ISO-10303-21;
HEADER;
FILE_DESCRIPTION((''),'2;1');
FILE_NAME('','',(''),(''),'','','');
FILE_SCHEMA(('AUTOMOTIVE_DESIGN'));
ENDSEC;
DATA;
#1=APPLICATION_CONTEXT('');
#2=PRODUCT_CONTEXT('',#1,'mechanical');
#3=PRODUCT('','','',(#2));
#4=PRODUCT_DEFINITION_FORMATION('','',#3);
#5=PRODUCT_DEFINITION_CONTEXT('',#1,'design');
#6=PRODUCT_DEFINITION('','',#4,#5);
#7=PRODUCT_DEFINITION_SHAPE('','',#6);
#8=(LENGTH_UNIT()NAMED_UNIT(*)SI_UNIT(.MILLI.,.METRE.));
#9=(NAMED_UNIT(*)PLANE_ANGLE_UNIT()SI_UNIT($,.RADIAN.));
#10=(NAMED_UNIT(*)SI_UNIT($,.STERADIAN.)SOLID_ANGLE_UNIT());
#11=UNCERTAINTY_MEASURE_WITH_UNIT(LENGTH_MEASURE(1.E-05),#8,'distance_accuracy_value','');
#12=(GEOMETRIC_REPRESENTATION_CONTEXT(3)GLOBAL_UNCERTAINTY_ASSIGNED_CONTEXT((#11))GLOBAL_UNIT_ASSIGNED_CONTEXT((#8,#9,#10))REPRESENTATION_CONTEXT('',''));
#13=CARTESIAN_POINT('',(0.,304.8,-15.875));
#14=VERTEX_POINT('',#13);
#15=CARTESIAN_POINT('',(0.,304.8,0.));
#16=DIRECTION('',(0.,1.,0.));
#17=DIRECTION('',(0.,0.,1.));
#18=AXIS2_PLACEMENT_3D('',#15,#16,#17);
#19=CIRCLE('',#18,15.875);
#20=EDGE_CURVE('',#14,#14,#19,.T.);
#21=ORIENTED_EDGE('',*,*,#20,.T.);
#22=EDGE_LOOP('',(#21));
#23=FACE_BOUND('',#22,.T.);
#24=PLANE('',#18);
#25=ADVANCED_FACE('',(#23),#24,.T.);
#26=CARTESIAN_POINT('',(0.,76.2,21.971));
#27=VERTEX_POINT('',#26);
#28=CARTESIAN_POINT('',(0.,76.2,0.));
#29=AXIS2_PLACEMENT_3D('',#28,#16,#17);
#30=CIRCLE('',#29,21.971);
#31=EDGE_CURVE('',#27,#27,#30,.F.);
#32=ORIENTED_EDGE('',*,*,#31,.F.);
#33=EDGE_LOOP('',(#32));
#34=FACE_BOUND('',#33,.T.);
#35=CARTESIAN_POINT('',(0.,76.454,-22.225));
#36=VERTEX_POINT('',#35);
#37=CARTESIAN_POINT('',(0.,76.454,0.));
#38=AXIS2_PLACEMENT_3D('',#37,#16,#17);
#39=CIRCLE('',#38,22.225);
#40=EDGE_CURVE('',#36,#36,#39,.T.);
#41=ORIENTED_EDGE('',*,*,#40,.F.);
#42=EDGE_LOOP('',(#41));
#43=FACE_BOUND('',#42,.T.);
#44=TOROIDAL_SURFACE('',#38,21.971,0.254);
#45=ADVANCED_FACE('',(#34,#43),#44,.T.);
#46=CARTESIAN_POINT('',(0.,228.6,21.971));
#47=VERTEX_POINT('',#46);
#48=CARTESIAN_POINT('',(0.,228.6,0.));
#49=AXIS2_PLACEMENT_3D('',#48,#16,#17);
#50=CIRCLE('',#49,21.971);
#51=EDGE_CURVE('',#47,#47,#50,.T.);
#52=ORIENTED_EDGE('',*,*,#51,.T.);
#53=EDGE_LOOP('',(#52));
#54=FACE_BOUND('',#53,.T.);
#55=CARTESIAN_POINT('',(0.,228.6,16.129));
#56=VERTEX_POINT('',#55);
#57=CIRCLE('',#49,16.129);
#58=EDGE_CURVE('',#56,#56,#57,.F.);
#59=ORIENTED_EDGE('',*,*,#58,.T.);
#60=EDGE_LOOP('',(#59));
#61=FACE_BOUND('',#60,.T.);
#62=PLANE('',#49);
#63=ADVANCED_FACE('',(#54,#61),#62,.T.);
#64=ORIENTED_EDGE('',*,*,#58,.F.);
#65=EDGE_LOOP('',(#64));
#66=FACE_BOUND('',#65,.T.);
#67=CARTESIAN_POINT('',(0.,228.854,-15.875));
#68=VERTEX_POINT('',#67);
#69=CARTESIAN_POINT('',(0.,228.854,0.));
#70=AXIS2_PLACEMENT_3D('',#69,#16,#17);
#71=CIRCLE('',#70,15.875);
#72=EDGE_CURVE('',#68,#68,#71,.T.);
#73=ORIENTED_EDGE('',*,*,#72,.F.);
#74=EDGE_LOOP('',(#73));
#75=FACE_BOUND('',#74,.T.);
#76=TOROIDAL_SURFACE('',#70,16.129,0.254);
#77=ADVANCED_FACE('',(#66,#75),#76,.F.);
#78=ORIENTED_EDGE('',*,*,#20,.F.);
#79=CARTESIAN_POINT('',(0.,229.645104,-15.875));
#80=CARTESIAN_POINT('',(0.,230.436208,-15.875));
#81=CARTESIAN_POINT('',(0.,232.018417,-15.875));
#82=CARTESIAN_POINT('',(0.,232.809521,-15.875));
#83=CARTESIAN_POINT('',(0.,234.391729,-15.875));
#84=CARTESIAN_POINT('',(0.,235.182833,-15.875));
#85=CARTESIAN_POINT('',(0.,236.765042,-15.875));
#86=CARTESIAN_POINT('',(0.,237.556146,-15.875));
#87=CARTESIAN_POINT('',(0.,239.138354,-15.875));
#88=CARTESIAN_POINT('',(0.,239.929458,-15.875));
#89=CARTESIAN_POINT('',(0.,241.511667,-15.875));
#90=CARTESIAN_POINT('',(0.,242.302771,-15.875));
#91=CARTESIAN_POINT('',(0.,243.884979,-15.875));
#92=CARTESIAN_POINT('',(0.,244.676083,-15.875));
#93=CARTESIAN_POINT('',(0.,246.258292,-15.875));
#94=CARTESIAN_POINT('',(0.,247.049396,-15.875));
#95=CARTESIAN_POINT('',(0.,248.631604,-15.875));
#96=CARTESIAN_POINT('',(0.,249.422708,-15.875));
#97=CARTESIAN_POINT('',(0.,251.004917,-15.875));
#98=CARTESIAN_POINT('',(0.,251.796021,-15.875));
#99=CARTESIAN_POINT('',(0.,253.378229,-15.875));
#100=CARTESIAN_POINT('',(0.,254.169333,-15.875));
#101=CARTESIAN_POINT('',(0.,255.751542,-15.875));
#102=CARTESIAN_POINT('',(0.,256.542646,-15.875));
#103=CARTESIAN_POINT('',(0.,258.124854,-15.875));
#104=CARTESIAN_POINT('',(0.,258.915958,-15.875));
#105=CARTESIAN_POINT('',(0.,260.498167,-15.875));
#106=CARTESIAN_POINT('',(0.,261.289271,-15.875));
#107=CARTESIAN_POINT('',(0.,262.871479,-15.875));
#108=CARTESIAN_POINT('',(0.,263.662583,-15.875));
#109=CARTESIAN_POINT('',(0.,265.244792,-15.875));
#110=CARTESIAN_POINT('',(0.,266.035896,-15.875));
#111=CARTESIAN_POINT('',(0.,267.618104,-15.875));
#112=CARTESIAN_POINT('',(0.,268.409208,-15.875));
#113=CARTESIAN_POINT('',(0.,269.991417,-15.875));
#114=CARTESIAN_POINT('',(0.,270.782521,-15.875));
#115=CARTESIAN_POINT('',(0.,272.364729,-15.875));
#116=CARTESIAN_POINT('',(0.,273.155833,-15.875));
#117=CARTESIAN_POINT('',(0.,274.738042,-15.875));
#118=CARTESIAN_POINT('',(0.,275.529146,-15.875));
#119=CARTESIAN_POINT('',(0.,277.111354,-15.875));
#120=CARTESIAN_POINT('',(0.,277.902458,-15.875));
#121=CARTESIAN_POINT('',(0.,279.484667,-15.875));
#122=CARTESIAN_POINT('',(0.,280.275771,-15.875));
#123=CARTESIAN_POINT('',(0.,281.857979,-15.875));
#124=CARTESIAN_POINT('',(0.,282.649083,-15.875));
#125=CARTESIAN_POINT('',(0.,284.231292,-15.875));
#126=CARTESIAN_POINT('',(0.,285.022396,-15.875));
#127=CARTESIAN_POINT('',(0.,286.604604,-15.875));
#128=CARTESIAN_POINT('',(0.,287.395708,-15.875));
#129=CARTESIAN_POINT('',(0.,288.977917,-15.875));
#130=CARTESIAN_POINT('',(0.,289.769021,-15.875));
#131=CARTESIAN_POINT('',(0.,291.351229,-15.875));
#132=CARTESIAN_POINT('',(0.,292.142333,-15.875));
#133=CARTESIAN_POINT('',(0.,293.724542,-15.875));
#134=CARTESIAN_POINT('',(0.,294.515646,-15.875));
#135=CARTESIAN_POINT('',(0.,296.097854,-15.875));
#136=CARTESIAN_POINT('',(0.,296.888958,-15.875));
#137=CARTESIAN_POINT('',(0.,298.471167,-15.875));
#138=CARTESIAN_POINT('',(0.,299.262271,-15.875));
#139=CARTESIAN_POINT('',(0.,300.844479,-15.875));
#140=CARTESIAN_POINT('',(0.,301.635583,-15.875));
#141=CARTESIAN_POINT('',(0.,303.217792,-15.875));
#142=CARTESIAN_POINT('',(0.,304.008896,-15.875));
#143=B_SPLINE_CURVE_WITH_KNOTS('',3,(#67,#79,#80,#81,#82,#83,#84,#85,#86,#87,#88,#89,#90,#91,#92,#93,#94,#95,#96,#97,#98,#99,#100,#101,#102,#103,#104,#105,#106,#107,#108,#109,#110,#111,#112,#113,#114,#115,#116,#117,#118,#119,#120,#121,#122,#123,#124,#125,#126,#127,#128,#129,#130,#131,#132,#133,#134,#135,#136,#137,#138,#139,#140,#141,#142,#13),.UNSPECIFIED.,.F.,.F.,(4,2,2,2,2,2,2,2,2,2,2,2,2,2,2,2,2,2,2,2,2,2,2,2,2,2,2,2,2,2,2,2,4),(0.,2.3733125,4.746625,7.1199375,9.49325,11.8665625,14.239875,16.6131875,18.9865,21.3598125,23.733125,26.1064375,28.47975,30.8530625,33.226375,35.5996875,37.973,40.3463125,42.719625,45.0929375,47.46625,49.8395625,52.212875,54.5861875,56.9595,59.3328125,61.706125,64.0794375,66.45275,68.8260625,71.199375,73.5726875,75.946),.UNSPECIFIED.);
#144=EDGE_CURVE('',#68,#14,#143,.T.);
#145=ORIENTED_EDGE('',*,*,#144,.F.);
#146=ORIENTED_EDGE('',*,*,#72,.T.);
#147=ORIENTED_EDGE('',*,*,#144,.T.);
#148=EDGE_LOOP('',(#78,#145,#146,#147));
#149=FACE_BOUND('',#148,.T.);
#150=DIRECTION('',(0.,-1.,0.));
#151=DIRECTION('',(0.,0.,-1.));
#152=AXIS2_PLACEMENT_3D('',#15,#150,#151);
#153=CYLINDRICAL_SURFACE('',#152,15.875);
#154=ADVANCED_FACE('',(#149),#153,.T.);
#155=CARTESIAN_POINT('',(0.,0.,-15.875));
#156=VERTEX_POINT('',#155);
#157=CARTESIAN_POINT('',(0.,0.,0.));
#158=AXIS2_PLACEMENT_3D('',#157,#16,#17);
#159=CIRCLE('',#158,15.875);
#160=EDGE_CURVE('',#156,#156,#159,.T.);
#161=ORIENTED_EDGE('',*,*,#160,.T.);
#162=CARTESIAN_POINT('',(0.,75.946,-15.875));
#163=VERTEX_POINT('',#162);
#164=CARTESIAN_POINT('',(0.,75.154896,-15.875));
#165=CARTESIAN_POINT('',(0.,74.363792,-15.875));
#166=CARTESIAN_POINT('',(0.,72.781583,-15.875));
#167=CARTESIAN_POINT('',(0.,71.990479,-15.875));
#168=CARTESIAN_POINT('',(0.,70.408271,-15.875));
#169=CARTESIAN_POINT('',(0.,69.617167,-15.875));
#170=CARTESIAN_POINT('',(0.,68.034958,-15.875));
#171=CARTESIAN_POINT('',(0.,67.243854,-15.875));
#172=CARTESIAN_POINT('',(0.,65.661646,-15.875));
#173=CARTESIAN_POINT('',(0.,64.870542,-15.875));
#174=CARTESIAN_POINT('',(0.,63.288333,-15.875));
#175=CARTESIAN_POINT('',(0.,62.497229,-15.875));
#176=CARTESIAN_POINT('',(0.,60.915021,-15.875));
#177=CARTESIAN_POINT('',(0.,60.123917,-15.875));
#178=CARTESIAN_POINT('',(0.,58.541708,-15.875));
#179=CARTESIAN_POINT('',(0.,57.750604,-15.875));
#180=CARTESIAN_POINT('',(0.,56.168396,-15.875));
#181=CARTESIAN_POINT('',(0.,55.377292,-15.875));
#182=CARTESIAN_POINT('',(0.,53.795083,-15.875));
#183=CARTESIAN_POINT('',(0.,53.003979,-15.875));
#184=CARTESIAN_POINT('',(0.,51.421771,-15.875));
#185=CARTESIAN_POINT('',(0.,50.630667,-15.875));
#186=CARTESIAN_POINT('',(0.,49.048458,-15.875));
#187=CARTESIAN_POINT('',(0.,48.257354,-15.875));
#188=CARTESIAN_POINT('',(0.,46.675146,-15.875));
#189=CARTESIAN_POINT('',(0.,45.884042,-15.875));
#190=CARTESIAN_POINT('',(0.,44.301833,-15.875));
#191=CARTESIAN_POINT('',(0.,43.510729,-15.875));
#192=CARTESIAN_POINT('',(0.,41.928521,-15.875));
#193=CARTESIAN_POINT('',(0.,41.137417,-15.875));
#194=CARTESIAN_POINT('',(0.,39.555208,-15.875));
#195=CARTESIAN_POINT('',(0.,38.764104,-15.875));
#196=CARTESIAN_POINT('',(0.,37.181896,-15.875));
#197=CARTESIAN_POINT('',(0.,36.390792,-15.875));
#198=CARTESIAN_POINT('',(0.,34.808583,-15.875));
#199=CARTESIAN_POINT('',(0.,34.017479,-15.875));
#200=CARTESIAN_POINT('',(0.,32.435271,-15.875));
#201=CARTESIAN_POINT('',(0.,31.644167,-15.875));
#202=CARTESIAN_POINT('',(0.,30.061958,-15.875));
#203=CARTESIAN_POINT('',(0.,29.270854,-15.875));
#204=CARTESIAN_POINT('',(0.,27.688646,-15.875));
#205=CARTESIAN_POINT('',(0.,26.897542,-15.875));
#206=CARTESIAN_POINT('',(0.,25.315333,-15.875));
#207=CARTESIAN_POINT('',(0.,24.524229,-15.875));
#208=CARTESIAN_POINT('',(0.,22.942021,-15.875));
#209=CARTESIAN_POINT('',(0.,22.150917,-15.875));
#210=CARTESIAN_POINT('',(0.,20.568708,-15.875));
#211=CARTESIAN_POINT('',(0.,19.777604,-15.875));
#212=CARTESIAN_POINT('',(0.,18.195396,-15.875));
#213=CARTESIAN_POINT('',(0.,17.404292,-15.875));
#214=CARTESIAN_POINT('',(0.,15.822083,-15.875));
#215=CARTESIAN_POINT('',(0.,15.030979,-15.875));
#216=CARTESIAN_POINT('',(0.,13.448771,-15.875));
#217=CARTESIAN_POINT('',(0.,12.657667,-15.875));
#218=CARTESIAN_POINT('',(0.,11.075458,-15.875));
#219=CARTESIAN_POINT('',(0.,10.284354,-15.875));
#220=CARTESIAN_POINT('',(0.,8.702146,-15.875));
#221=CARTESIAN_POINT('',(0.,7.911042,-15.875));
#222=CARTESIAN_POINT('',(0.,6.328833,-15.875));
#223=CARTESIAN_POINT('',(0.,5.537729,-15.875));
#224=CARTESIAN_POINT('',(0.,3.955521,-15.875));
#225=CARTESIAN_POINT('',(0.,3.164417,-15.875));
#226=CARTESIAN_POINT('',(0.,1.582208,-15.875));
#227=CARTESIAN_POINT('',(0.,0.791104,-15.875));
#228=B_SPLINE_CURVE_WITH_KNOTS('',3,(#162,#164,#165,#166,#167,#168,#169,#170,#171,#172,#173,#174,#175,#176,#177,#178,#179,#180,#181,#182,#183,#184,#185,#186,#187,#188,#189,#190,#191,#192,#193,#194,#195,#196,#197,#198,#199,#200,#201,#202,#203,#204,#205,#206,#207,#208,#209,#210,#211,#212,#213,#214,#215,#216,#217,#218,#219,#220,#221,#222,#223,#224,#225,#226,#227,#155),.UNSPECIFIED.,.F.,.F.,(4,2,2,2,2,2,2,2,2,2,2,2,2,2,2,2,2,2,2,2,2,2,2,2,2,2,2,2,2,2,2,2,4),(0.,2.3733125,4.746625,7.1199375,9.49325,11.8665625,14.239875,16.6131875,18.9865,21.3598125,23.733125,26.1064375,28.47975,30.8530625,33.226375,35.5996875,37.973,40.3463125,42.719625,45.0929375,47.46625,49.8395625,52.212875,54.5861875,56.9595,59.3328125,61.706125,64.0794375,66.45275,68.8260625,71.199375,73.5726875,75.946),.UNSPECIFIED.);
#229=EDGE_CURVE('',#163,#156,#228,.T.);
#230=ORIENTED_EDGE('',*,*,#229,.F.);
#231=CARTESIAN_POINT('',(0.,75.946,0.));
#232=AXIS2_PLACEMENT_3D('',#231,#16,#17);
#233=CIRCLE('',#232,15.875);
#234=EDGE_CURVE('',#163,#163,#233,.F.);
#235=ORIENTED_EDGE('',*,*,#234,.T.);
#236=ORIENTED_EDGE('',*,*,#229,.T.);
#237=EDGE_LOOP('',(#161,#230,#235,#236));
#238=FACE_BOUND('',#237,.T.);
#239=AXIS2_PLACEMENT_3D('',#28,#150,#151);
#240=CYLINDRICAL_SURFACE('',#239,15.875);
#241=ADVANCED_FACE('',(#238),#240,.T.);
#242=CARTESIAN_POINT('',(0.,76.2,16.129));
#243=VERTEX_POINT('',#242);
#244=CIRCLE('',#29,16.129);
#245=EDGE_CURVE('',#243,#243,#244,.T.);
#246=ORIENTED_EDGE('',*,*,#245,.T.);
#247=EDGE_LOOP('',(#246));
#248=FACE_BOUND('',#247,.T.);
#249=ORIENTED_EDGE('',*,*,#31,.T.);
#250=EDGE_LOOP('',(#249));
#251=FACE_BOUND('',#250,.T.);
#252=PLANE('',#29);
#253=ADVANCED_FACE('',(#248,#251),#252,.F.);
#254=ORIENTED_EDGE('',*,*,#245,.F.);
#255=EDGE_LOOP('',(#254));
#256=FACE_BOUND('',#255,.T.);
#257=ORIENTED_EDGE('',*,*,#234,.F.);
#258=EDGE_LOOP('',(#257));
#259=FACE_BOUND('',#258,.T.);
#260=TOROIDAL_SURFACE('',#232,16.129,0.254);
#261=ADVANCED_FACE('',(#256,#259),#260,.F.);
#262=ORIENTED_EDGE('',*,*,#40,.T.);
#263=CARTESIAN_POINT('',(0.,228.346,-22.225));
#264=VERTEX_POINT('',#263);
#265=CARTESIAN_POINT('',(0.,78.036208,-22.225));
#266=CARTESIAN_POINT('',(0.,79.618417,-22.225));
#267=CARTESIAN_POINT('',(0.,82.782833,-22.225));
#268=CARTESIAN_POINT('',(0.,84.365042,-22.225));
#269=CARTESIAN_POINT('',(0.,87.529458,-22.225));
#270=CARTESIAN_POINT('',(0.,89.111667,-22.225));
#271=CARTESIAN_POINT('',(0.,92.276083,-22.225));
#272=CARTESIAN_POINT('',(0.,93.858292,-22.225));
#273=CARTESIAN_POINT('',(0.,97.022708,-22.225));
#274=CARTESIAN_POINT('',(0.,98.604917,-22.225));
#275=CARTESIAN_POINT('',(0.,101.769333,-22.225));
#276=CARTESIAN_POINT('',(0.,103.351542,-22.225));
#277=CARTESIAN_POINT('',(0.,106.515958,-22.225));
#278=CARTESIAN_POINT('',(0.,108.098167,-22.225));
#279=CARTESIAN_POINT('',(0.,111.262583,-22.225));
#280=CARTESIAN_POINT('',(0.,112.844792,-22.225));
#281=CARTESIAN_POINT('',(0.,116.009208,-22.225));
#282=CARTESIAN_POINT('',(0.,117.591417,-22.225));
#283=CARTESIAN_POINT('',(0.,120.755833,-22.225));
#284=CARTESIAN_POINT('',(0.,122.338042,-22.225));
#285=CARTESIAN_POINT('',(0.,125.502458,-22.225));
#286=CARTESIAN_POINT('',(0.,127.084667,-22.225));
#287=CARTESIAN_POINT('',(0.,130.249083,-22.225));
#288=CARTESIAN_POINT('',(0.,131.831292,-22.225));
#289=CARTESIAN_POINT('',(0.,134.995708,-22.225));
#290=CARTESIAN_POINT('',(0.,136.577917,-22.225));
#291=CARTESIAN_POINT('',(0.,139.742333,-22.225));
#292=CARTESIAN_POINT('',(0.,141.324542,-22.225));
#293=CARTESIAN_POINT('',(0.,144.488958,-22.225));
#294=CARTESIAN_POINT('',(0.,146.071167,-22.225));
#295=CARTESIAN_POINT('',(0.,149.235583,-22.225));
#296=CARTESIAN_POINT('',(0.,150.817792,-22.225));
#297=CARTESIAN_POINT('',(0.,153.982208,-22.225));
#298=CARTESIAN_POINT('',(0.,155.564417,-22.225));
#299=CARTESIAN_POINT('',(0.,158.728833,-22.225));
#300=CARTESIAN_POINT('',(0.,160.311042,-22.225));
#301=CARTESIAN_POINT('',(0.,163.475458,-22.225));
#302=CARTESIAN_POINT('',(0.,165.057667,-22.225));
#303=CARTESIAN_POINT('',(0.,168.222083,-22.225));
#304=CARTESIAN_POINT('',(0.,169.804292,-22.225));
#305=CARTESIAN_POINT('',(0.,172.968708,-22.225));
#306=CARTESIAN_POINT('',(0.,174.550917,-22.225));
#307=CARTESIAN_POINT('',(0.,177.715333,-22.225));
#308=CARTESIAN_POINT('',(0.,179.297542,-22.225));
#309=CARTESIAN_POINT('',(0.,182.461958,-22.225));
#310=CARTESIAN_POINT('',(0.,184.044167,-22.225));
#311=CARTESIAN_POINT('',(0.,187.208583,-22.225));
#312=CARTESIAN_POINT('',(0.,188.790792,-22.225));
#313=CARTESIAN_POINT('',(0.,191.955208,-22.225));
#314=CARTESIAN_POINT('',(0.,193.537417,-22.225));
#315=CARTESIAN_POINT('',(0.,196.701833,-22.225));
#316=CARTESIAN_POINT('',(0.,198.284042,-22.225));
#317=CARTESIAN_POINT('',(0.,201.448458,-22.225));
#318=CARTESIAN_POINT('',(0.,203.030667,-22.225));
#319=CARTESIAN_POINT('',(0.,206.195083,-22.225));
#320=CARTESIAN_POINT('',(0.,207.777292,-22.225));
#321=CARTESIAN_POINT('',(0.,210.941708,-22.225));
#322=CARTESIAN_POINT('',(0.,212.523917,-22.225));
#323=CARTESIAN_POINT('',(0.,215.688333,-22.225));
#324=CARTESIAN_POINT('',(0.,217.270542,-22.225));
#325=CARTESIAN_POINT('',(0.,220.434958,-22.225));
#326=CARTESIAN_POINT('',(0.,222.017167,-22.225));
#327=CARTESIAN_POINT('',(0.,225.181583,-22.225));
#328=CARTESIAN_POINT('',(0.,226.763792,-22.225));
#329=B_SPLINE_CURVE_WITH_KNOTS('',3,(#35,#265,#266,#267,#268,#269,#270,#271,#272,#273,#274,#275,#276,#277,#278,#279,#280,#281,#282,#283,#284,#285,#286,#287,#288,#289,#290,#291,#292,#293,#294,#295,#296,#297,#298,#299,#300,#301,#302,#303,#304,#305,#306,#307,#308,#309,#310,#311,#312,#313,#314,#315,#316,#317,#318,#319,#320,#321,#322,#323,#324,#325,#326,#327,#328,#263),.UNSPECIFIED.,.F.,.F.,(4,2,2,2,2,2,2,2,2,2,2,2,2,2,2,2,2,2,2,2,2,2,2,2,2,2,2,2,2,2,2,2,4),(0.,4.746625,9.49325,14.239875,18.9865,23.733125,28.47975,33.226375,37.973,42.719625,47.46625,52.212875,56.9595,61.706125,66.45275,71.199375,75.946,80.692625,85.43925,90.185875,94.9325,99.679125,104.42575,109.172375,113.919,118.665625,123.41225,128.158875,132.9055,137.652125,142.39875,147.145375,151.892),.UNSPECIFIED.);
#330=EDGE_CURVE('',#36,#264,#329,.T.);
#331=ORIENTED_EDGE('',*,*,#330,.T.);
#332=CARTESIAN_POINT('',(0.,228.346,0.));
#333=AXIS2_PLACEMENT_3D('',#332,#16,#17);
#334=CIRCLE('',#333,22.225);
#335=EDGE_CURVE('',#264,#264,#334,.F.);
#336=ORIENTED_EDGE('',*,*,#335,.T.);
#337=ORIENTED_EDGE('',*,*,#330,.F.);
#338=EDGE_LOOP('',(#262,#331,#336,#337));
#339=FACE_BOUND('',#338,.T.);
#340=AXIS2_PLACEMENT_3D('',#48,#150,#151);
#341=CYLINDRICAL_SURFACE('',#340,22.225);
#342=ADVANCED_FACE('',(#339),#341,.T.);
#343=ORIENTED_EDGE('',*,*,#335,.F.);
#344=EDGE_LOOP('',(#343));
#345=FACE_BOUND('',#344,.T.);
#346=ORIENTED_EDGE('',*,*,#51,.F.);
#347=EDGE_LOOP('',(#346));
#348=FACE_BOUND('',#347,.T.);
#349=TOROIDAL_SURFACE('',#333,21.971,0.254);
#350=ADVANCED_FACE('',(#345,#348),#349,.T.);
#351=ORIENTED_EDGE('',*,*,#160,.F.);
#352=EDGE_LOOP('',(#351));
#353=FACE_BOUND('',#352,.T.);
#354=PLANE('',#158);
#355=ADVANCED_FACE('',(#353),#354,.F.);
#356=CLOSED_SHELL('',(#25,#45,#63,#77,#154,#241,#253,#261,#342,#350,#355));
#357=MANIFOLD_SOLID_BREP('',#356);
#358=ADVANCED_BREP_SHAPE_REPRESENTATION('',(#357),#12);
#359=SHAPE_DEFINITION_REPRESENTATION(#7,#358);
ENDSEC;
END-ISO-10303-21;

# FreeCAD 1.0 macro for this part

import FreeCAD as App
import Part
import Sketcher
from FreeCAD import Vector
Q = App.Units.Quantity


def edges_at(feature, points):
    """Names of the edges that pass closest to the given points."""
    edges = feature.Shape.Edges
    near = lambda p: min(range(len(edges)), key=lambda i: edges[i].distToShape(Part.Vertex(*p))[0])
    return sorted({f"Edge{near(p) + 1}" for p in points})

doc = App.newDocument("Part")
body = doc.addObject("PartDesign::Body", "Body")

# Sketch on XZ plane
sketch1 = body.newObject("Sketcher::SketchObject", "Sketch")
sketch1.AttachmentSupport = (doc.getObject("XZ_Plane"), [""])
sketch1.MapMode = "FlatFace"
sketch1.addGeometry(Part.Circle(Vector(0, 0, 0), Vector(0, 0, 1), 16), False)
sketch1.addConstraint(Sketcher.Constraint("Coincident", 0, 3, -1, 1))
sketch1.addConstraint(Sketcher.Constraint("Diameter", 0, Q("1.25 in")))
pad1 = body.newObject("PartDesign::Pad", "Pad")
pad1.Profile = sketch1
pad1.Length = Q("3 in")
pad1.Reversed = True

# Sketch on XZ plane
sketch2 = body.newObject("Sketcher::SketchObject", "Sketch001")
sketch2.AttachmentSupport = (doc.getObject("XZ_Plane"), [""])
sketch2.MapMode = "FlatFace"
sketch2.AttachmentOffset = App.Placement(Vector(0, 0, -3 * 25.4), App.Rotation())
sketch2.addGeometry(Part.Circle(Vector(0, 0, 0), Vector(0, 0, 1), 22), False)
sketch2.addConstraint(Sketcher.Constraint("Coincident", 0, 3, -1, 1))
sketch2.addConstraint(Sketcher.Constraint("Diameter", 0, Q("1.75 in")))
pad2 = body.newObject("PartDesign::Pad", "Pad001")
pad2.Profile = sketch2
pad2.Length = Q("6 in")
pad2.Reversed = True

# Sketch on XZ plane
sketch3 = body.newObject("Sketcher::SketchObject", "Sketch002")
sketch3.AttachmentSupport = (doc.getObject("XZ_Plane"), [""])
sketch3.MapMode = "FlatFace"
sketch3.AttachmentOffset = App.Placement(Vector(0, 0, -9 * 25.4), App.Rotation())
sketch3.addGeometry(Part.Circle(Vector(0, 0, 0), Vector(0, 0, 1), 16), False)
sketch3.addConstraint(Sketcher.Constraint("Coincident", 0, 3, -1, 1))
sketch3.addConstraint(Sketcher.Constraint("Diameter", 0, Q("1.25 in")))
pad3 = body.newObject("PartDesign::Pad", "Pad002")
pad3.Profile = sketch3
pad3.Length = Q("3 in")
pad3.Reversed = True
doc.recompute()

fillet = body.newObject("PartDesign::Fillet", "Fillet")
fillet.Base = (pad3, edges_at(pad3, [(0, 76.2, 15.875)]))
fillet.Radius = Q("0.01 in")
doc.recompute()

fillet2 = body.newObject("PartDesign::Fillet", "Fillet001")
fillet2.Base = (fillet, edges_at(fillet, [(0, 228.6, 15.875)]))
fillet2.Radius = Q("0.01 in")
doc.recompute()

fillet3 = body.newObject("PartDesign::Fillet", "Fillet002")
fillet3.Base = (fillet2, edges_at(fillet2, [(0, 228.6, 22.225)]))
fillet3.Radius = Q("0.01 in")
doc.recompute()

fillet4 = body.newObject("PartDesign::Fillet", "Fillet003")
fillet4.Base = (fillet3, edges_at(fillet3, [(0, 76.2, 22.225)]))
fillet4.Radius = Q("0.01 in")

doc.recompute()
